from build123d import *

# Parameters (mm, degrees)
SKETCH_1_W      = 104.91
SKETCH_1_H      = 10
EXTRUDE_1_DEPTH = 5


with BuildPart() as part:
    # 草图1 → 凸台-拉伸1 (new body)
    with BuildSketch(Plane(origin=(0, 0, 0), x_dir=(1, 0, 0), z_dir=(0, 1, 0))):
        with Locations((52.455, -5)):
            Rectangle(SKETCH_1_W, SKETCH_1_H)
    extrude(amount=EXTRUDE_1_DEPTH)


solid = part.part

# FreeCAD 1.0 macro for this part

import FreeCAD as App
import Part
import Sketcher
from FreeCAD import Vector


def add_polygon(sketch, points):
    """Adds a closed chain of lines whose ends are joined by coincident constraints."""
    first, n = sketch.GeometryCount, len(points)
    for a, b in zip(points, points[1:] + points[:1]):
        sketch.addGeometry(Part.LineSegment(App.Vector(*a, 0), App.Vector(*b, 0)), False)
    for i in range(n):
        sketch.addConstraint(Sketcher.Constraint("Coincident", first + i, 2, first + (i + 1) % n, 1))

doc = App.newDocument("Part")
body = doc.addObject("PartDesign::Body", "Body")

# Sketch on XZ plane
sketch1 = body.newObject("Sketcher::SketchObject", "Sketch")
sketch1.AttachmentSupport = (doc.getObject("XZ_Plane"), [""])
sketch1.MapMode = "FlatFace"
add_polygon(sketch1, [(0, 0), (0, 10), (105, 10), (105, 0)])  # lines 0-3
sketch1.addConstraint([
    Sketcher.Constraint("Vertical", 0),
    Sketcher.Constraint("Horizontal", 1),
    Sketcher.Constraint("Vertical", 2),
    Sketcher.Constraint("Horizontal", 3),
    Sketcher.Constraint("Coincident", 3, 2, -1, 1),
    Sketcher.Constraint("DistanceY", 0, 1, 0, 2, 10.0),
    Sketcher.Constraint("DistanceX", 1, 1, 1, 2, 104.91),
])
pad1 = body.newObject("PartDesign::Pad", "Pad")
pad1.Profile = sketch1
pad1.Length = 5
pad1.Reversed = True

doc.recompute()
